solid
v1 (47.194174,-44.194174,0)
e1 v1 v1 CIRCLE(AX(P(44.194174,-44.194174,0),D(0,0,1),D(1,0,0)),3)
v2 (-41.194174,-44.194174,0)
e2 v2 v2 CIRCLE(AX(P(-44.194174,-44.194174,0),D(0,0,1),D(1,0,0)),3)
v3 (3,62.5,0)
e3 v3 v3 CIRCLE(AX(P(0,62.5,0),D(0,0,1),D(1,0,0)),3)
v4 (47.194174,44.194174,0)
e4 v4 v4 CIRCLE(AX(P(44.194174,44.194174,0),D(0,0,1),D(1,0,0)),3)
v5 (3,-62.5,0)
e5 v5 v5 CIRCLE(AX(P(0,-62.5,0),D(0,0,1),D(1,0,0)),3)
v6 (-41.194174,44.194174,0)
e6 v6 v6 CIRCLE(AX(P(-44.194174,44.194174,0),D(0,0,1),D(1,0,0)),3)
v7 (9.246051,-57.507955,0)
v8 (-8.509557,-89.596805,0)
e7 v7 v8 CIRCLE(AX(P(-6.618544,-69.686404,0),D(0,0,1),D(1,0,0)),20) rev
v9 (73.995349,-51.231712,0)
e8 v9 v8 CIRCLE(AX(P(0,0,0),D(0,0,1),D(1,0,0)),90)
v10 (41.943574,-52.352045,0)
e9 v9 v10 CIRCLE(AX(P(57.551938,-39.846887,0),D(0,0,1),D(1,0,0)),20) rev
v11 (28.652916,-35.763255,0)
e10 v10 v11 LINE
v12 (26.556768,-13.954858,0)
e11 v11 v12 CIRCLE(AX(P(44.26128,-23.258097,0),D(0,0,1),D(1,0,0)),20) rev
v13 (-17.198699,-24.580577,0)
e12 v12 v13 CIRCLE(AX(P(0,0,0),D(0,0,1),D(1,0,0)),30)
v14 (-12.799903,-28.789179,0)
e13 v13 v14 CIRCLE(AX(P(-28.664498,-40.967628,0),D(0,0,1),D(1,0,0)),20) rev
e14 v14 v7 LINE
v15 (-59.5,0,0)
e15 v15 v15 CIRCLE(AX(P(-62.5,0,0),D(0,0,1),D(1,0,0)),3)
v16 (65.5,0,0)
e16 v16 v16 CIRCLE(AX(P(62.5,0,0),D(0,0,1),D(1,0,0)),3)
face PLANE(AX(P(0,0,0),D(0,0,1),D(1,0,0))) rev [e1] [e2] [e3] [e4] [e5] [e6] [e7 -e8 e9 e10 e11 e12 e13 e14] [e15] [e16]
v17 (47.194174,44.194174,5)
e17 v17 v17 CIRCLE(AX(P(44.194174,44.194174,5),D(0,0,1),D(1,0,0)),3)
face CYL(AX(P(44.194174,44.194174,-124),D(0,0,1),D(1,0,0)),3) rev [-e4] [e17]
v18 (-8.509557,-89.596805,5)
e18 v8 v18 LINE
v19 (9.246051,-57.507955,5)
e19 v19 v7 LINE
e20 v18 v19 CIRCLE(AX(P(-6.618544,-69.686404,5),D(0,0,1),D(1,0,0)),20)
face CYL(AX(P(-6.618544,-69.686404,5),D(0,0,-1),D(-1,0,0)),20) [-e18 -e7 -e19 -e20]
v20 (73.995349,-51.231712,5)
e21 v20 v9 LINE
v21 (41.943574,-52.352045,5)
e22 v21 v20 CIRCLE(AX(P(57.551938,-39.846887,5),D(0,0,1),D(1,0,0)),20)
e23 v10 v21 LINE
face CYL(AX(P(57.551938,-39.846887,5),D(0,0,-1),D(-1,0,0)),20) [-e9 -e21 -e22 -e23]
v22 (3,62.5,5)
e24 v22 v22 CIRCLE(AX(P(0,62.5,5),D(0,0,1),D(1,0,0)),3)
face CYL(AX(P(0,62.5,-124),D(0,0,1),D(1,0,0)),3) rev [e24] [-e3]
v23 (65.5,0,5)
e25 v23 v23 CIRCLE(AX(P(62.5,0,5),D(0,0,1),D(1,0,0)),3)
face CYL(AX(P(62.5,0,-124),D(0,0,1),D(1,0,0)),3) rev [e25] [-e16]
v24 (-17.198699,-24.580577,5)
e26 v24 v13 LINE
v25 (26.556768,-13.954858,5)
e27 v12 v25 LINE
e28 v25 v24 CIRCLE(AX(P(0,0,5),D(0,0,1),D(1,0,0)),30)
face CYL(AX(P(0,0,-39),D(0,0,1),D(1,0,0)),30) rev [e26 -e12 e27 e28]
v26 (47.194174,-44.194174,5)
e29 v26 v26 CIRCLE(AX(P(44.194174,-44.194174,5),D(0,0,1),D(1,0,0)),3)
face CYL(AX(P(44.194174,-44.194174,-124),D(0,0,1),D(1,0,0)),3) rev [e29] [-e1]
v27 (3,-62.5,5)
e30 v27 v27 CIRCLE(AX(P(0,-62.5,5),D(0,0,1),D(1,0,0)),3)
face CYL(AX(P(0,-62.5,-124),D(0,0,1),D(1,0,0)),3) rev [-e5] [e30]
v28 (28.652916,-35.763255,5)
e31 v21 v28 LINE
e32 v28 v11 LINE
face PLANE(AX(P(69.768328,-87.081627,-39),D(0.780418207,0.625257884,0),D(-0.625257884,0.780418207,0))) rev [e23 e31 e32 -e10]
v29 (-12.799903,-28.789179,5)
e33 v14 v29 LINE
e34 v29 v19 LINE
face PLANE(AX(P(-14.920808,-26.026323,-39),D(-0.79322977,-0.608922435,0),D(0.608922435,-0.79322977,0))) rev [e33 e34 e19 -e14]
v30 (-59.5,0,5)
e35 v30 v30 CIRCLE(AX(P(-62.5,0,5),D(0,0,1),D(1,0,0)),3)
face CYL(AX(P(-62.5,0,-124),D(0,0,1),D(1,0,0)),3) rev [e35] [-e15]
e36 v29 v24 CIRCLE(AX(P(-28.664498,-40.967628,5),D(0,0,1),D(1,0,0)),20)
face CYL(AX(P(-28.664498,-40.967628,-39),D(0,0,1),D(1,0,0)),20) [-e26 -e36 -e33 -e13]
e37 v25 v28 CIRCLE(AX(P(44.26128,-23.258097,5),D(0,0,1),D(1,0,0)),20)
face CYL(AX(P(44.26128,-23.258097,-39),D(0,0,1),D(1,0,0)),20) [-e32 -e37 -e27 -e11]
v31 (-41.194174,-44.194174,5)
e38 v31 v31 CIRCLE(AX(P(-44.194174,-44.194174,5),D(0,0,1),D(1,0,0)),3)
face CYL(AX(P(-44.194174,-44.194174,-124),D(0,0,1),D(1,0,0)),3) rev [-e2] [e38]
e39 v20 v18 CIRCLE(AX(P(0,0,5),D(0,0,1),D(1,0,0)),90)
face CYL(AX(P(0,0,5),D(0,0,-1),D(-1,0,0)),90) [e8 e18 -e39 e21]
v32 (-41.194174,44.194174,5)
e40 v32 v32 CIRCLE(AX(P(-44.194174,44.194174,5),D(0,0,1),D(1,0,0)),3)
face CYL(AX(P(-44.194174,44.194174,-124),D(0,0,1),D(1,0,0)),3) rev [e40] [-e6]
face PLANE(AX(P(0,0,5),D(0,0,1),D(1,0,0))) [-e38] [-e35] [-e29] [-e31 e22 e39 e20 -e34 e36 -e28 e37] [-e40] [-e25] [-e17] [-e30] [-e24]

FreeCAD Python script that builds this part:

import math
import FreeCAD as App
import Part
import Sketcher


def edges_at(feature, points):
    """Names of the edges that pass closest to the given points."""
    edges = feature.Shape.Edges
    near = lambda p: min(range(len(edges)), key=lambda i: edges[i].distToShape(Part.Vertex(*p))[0])
    return sorted({f"Edge{near(p) + 1}" for p in points})

doc = App.newDocument("Part")
body = doc.addObject("PartDesign::Body", "Body")

# Sketch on XY plane
sketch1 = body.newObject("Sketcher::SketchObject", "Sketch")
sketch1.AttachmentSupport = (doc.getObject("XY_Plane"), [""])
sketch1.MapMode = "FlatFace"
sketch1.addGeometry(Part.Circle(App.Vector(0, 0, 0), App.Vector(0, 0, 1), 90), False)
sketch1.addConstraint(Sketcher.Constraint("Coincident", 0, 3, -1, 1))
sketch1.addConstraint(Sketcher.Constraint("Diameter", 0, 180.0))
pad1 = body.newObject("PartDesign::Pad", "Pad")
pad1.Profile = sketch1
pad1.Length = 5

# Sketch on XY plane
sketch2 = body.newObject("Sketcher::SketchObject", "Sketch001")
sketch2.AttachmentSupport = (doc.getObject("XY_Plane"), [""])
sketch2.MapMode = "FlatFace"
sketch2.AttachmentOffset = App.Placement(App.Vector(0, 0, 5), App.Rotation())
sketch2.addGeometry(Part.LineSegment(App.Vector(46, -105, 0), App.Vector(70, -87, 0)), False)
sketch2.addGeometry(Part.LineSegment(App.Vector(70, -87, 0), App.Vector(19, -23, 0)), False)
sketch2.addGeometry(Part.ArcOfCircle(Part.Circle(App.Vector(0, 0, 0), App.Vector(0, 0, 1), 30), math.radians(-51), math.radians(240)), False)
sketch2.addGeometry(Part.LineSegment(App.Vector(-15, -26, 0), App.Vector(46, -105, 0)), False)
sketch2.addConstraint(Sketcher.Constraint("Coincident", 0, 2, 1, 1))
sketch2.addConstraint(Sketcher.Constraint("Coincident", 1, 2, 2, 1))
sketch2.addConstraint(Sketcher.Constraint("Coincident", 2, 2, 3, 1))
sketch2.addConstraint(Sketcher.Constraint("Coincident", 3, 2, 0, 1))
sketch2.addConstraint(Sketcher.Constraint("Coincident", 2, 3, -1, 1))
sketch2.addConstraint(Sketcher.Constraint("Perpendicular", 0, 3))
sketch2.addConstraint(Sketcher.Constraint("Radius", 2, 30.0))
sketch2.addConstraint(Sketcher.Constraint("Distance", 0, 30.0))
sketch2.addConstraint(Sketcher.Constraint("Distance", 3, 100.0))
sketch2.addConstraint(Sketcher.Constraint("DistanceY", 3, 2, -1, 1, 105.3493))
sketch2.addConstraint(Sketcher.Constraint("DistanceX", 1, 2, 3, 2, 27.213699))
sketch2.addConstraint(Sketcher.Constraint("DistanceX", -1, 1, 0, 2, 69.768328))
pocket1 = body.newObject("PartDesign::Pocket", "Pocket")
pocket1.Profile = sketch2
pocket1.Length = 44

# Sketch on XY plane
sketch3 = body.newObject("Sketcher::SketchObject", "Sketch002")
sketch3.AttachmentSupport = (doc.getObject("XY_Plane"), [""])
sketch3.MapMode = "FlatFace"
sketch3.AttachmentOffset = App.Placement(App.Vector(0, 0, 5), App.Rotation())
sketch3.addGeometry(Part.Circle(App.Vector(62.5, 0, 0), App.Vector(0, 0, 1), 3), False)
sketch3.addGeometry(Part.Circle(App.Vector(44.2, -44.2, 0), App.Vector(0, 0, 1), 3), False)
sketch3.addGeometry(Part.Circle(App.Vector(0, -62.5, 0), App.Vector(0, 0, 1), 3), False)
sketch3.addGeometry(Part.Circle(App.Vector(-44.2, -44.2, 0), App.Vector(0, 0, 1), 3), False)
sketch3.addGeometry(Part.Circle(App.Vector(-62.5, 0, 0), App.Vector(0, 0, 1), 3), False)
sketch3.addGeometry(Part.Circle(App.Vector(-44.2, 44.2, 0), App.Vector(0, 0, 1), 3), False)
sketch3.addGeometry(Part.Circle(App.Vector(0, 62.5, 0), App.Vector(0, 0, 1), 3), False)
sketch3.addGeometry(Part.Circle(App.Vector(44.2, 44.2, 0), App.Vector(0, 0, 1), 3), False)
sketch3.addConstraint(Sketcher.Constraint("Equal", 0, 1))
sketch3.addConstraint(Sketcher.Constraint("Equal", 1, 2))
sketch3.addConstraint(Sketcher.Constraint("Equal", 2, 3))
sketch3.addConstraint(Sketcher.Constraint("Equal", 3, 4))
sketch3.addConstraint(Sketcher.Constraint("Equal", 4, 5))
sketch3.addConstraint(Sketcher.Constraint("Equal", 5, 6))
sketch3.addConstraint(Sketcher.Constraint("Equal", 6, 7))
sketch3.addConstraint(Sketcher.Constraint("Symmetric", 0, 3, 4, 3, -1, 1))
sketch3.addConstraint(Sketcher.Constraint("Symmetric", 1, 3, 5, 3, -1, 1))
sketch3.addConstraint(Sketcher.Constraint("Symmetric", 2, 3, 6, 3, -1, 1))
sketch3.addConstraint(Sketcher.Constraint("Symmetric", 3, 3, 7, 3, -1, 1))
sketch3.addConstraint(Sketcher.Constraint("Symmetric", 1, 3, 3, 3, -2))
sketch3.addConstraint(Sketcher.Constraint("PointOnObject", 0, 3, -1))
sketch3.addConstraint(Sketcher.Constraint("PointOnObject", 2, 3, -2))
sketch3.addConstraint(Sketcher.Constraint("Diameter", 0, 6.0))
sketch3.addConstraint(Sketcher.Constraint("DistanceX", 4, 3, 0, 3, 125.0))
sketch3.addConstraint(Sketcher.Constraint("DistanceY", 2, 3, -1, 1, 62.5))
sketch3.addConstraint(Sketcher.Constraint("DistanceX", -1, 1, 1, 3, 44.194174))
sketch3.addConstraint(Sketcher.Constraint("DistanceY", 1, 3, -1, 1, 44.194174))
pocket2 = body.newObject("PartDesign::Pocket", "Pocket001")
pocket2.Profile = sketch3
pocket2.Length = 129
doc.recompute()

fillet = body.newObject("PartDesign::Fillet", "Fillet")
fillet.Base = (pocket2, edges_at(pocket2, [
    (-14.921, -26.026, 2.5),
    (56.273, -70.238, 2.5),
    (18.758, -23.413, 2.5),
    (30.187, -84.787, 2.5),
]))
fillet.Radius = 20

doc.recompute()
